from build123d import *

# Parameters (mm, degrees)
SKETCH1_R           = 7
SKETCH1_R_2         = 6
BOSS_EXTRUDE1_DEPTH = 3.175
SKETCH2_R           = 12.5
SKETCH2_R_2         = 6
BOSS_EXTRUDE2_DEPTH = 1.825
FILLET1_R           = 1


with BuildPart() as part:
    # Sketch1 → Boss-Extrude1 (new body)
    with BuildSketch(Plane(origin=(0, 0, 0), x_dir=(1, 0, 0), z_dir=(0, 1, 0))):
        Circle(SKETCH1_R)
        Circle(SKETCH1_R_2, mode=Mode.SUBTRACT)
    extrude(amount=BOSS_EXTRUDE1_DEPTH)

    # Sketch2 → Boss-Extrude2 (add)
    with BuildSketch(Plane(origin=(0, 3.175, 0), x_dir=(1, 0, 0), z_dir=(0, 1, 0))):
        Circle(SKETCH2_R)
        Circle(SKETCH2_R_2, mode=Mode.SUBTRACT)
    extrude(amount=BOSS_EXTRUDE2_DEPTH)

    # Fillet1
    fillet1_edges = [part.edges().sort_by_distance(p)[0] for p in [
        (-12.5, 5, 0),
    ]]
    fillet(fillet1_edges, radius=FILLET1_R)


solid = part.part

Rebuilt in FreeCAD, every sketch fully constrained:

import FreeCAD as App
import Part
import Sketcher


def edges_at(feature, points):
    """Names of the edges that pass closest to the given points."""
    edges = feature.Shape.Edges
    near = lambda p: min(range(len(edges)), key=lambda i: edges[i].distToShape(Part.Vertex(*p))[0])
    return sorted({f"Edge{near(p) + 1}" for p in points})

doc = App.newDocument("Part")
body = doc.addObject("PartDesign::Body", "Body")

sketch1 = body.newObject("Sketcher::SketchObject", "Sketch")
sketch1.AttachmentSupport = (doc.getObject("XZ_Plane"), [""])
sketch1.MapMode = "FlatFace"
sketch1.addGeometry([
    Part.Circle(App.Vector(0, 0, 0), App.Vector(0, 0, 1), 7),
    Part.Circle(App.Vector(0, 0, 0), App.Vector(0, 0, 1), 6),
], False)
sketch1.addConstraint([
    Sketcher.Constraint("Coincident", 0, 3, -1, 1),
    Sketcher.Constraint("Coincident", 1, 3, -1, 1),
    Sketcher.Constraint("Diameter", 0, 14.0),
    Sketcher.Constraint("Diameter", 1, 12.0),
])
pad1 = body.newObject("PartDesign::Pad", "Pad")
pad1.Profile = sketch1
pad1.Length = 3.175
pad1.Reversed = True

sketch2 = body.newObject("Sketcher::SketchObject", "Sketch001")
sketch2.AttachmentSupport = (doc.getObject("XZ_Plane"), [""])
sketch2.MapMode = "FlatFace"
sketch2.AttachmentOffset = App.Placement(App.Vector(0, 0, -3.175), App.Rotation())
sketch2.addGeometry([
    Part.Circle(App.Vector(0, 0, 0), App.Vector(0, 0, 1), 12),
    Part.Circle(App.Vector(0, 0, 0), App.Vector(0, 0, 1), 6),
], False)
sketch2.addConstraint([
    Sketcher.Constraint("Coincident", 0, 3, -1, 1),
    Sketcher.Constraint("Coincident", 1, 3, -1, 1),
    Sketcher.Constraint("Diameter", 0, 25.0),
    Sketcher.Constraint("Diameter", 1, 12.0),
])
pad2 = body.newObject("PartDesign::Pad", "Pad001")
pad2.Profile = sketch2
pad2.Length = 1.825
pad2.Reversed = True
doc.recompute()

fillet = body.newObject("PartDesign::Fillet", "Fillet")
fillet.Base = (pad2, edges_at(pad2, [(-12.5, 5, 0)]))
fillet.Radius = 1

doc.recompute()
